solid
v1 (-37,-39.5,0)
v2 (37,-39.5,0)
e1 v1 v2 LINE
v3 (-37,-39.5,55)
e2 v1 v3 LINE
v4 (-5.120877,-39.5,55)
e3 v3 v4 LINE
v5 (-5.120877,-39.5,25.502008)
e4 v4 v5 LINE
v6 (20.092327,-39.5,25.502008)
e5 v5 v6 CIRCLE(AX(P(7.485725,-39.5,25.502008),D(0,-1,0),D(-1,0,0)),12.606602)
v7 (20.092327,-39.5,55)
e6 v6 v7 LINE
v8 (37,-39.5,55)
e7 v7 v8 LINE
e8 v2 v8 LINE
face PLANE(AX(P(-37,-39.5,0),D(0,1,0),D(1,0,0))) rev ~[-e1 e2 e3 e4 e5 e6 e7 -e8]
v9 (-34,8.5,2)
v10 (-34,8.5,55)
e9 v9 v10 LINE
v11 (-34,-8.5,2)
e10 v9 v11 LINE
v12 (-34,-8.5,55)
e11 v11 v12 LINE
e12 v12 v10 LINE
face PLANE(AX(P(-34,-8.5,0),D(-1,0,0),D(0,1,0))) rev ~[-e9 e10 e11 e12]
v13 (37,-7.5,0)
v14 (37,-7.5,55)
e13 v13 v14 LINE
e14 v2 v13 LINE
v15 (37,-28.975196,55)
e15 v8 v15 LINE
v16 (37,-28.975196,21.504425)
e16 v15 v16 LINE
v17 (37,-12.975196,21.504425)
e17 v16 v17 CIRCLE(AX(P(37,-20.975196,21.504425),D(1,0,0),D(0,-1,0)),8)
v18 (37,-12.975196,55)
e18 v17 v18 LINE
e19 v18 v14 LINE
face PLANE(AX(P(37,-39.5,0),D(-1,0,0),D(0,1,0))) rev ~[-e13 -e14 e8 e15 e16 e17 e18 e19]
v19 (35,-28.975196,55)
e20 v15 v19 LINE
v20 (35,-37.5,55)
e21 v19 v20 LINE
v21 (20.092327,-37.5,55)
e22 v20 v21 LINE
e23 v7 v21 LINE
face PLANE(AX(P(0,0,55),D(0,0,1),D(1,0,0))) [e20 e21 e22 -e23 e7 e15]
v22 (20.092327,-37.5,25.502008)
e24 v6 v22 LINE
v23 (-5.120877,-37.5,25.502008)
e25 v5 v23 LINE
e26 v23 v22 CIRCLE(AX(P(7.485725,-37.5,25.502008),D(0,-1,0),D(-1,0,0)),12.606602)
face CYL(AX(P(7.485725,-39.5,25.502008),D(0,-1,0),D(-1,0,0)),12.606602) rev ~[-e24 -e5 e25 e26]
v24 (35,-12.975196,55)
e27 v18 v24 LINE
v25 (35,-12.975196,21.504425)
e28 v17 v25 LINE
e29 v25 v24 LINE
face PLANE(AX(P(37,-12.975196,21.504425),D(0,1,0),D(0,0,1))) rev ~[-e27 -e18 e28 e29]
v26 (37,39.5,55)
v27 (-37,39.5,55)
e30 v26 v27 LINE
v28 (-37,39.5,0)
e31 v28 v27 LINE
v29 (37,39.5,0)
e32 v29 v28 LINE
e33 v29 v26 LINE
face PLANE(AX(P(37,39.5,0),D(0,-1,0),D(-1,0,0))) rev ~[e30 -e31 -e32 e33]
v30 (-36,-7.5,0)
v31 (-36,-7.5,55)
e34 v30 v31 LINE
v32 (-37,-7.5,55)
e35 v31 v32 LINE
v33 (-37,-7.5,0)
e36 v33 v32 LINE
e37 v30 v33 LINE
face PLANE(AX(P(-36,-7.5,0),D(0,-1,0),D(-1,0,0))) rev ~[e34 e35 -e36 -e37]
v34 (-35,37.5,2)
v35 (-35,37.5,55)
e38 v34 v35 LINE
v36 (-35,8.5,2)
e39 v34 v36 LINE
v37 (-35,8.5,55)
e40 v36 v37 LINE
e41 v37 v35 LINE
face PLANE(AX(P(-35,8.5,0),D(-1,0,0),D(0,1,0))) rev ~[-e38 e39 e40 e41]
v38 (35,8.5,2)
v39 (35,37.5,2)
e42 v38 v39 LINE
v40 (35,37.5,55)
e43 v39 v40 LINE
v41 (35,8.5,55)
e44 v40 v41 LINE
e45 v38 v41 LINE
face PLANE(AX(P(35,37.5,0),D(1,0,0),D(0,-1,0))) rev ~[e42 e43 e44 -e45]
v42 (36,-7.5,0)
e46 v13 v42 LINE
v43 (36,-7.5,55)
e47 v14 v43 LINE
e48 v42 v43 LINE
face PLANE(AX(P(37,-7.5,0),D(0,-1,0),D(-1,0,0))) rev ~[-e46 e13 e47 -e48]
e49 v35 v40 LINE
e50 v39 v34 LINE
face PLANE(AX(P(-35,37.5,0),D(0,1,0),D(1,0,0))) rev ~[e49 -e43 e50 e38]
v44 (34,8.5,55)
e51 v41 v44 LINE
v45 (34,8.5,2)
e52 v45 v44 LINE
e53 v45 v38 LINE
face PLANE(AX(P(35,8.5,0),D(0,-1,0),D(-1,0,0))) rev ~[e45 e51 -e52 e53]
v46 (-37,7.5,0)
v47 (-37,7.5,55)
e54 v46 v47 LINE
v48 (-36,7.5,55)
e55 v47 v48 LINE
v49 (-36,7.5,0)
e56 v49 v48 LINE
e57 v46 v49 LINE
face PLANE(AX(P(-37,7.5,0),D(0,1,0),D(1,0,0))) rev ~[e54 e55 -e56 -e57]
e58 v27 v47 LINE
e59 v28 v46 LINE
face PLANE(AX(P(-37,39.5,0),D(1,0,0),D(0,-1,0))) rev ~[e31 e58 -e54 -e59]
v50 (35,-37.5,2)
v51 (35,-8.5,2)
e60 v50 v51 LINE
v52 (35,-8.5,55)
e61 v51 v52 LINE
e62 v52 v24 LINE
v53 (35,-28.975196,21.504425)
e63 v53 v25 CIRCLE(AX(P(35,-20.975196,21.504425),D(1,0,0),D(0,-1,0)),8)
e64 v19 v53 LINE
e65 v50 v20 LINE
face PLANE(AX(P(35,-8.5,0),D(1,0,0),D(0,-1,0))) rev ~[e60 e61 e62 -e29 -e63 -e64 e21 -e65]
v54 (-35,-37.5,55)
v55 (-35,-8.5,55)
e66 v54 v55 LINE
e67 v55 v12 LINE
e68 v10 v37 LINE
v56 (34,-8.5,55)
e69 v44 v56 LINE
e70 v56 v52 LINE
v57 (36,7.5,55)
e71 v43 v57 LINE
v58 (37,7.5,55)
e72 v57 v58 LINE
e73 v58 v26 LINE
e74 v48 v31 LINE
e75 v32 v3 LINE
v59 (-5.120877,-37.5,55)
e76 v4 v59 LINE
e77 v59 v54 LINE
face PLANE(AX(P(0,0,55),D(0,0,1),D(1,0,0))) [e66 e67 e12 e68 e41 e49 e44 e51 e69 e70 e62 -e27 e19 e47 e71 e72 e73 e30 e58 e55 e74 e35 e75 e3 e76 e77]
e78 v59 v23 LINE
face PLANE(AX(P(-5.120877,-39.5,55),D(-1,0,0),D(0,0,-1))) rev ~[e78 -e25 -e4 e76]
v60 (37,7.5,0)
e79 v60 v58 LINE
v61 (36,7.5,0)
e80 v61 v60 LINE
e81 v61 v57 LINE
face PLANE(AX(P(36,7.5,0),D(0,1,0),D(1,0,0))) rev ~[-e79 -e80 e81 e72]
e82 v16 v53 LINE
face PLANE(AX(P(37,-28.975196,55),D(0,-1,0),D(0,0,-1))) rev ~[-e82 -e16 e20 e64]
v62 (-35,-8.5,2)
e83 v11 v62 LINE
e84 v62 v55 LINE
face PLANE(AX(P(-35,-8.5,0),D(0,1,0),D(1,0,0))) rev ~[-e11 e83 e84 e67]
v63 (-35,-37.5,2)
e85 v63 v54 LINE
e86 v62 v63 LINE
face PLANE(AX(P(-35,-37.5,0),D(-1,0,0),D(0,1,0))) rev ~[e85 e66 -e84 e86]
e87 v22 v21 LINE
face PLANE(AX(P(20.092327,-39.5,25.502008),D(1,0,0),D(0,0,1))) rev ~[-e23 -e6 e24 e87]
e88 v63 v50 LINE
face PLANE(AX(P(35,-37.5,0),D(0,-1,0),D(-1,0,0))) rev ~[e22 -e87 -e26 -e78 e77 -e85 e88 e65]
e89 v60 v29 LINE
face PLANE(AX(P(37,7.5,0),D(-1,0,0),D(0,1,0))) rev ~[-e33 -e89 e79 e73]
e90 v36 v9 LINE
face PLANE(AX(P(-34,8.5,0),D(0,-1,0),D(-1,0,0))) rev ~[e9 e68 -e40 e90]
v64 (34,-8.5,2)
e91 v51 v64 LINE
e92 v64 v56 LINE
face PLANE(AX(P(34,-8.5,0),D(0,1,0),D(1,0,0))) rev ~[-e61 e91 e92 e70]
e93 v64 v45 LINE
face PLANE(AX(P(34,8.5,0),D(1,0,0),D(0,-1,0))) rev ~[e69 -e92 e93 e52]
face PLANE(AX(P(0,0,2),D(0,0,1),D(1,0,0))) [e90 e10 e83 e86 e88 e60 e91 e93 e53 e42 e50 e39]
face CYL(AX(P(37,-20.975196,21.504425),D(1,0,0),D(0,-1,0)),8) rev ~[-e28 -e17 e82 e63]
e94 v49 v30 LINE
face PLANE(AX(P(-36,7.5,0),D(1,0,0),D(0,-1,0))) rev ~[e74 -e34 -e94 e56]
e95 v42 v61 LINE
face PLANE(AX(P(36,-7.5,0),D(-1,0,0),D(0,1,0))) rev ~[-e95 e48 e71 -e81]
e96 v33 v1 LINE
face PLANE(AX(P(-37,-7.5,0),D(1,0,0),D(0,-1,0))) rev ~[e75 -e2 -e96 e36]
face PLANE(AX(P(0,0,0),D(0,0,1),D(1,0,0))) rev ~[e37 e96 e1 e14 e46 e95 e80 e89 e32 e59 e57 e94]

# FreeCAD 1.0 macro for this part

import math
import FreeCAD as App
import Part
import Sketcher

doc = App.newDocument("Part")
body = doc.addObject("PartDesign::Body", "Body")

sketch1 = doc.addObject("Sketcher::SketchObject", "Sketch")
body.addObject(sketch1)
sketch1.AttachmentSupport = (doc.XY_Plane, [""])
sketch1.MapMode = "FlatFace"
sketch1.addGeometry(Part.LineSegment(App.Vector(-35, -37.5, 0), App.Vector(35, -37.5, 0)), False)
sketch1.addGeometry(Part.LineSegment(App.Vector(35, -37.5, 0), App.Vector(35, -8.5, 0)), False)
sketch1.addGeometry(Part.LineSegment(App.Vector(35, -8.5, 0), App.Vector(34, -8.5, 0)), False)
sketch1.addGeometry(Part.LineSegment(App.Vector(34, -8.5, 0), App.Vector(34, 8.5, 0)), False)
sketch1.addGeometry(Part.LineSegment(App.Vector(34, 8.5, 0), App.Vector(35, 8.5, 0)), False)
sketch1.addGeometry(Part.LineSegment(App.Vector(35, 8.5, 0), App.Vector(35, 37.5, 0)), False)
sketch1.addGeometry(Part.LineSegment(App.Vector(35, 37.5, 0), App.Vector(-35, 37.5, 0)), False)
sketch1.addGeometry(Part.LineSegment(App.Vector(-35, 37.5, 0), App.Vector(-35, 8.5, 0)), False)
sketch1.addGeometry(Part.LineSegment(App.Vector(-35, 8.5, 0), App.Vector(-34, 8.5, 0)), False)
sketch1.addGeometry(Part.LineSegment(App.Vector(-34, 8.5, 0), App.Vector(-34, -8.5, 0)), False)
sketch1.addGeometry(Part.LineSegment(App.Vector(-34, -8.5, 0), App.Vector(-35, -8.5, 0)), False)
sketch1.addGeometry(Part.LineSegment(App.Vector(-35, -8.5, 0), App.Vector(-35, -37.5, 0)), False)
sketch1.addConstraint(Sketcher.Constraint("Coincident", 0, 2, 1, 1))
sketch1.addConstraint(Sketcher.Constraint("Coincident", 1, 2, 2, 1))
sketch1.addConstraint(Sketcher.Constraint("Coincident", 2, 2, 3, 1))
sketch1.addConstraint(Sketcher.Constraint("Coincident", 3, 2, 4, 1))
sketch1.addConstraint(Sketcher.Constraint("Coincident", 4, 2, 5, 1))
sketch1.addConstraint(Sketcher.Constraint("Coincident", 5, 2, 6, 1))
sketch1.addConstraint(Sketcher.Constraint("Coincident", 6, 2, 7, 1))
sketch1.addConstraint(Sketcher.Constraint("Coincident", 7, 2, 8, 1))
sketch1.addConstraint(Sketcher.Constraint("Coincident", 8, 2, 9, 1))
sketch1.addConstraint(Sketcher.Constraint("Coincident", 9, 2, 10, 1))
sketch1.addConstraint(Sketcher.Constraint("Coincident", 10, 2, 11, 1))
sketch1.addConstraint(Sketcher.Constraint("Coincident", 11, 2, 0, 1))
sketch1.addConstraint(Sketcher.Constraint("Horizontal", 0))
sketch1.addConstraint(Sketcher.Constraint("Vertical", 1))
sketch1.addConstraint(Sketcher.Constraint("Horizontal", 2))
sketch1.addConstraint(Sketcher.Constraint("Vertical", 3))
sketch1.addConstraint(Sketcher.Constraint("Horizontal", 4))
sketch1.addConstraint(Sketcher.Constraint("Vertical", 5))
sketch1.addConstraint(Sketcher.Constraint("Horizontal", 6))
sketch1.addConstraint(Sketcher.Constraint("Vertical", 7))
sketch1.addConstraint(Sketcher.Constraint("Horizontal", 8))
sketch1.addConstraint(Sketcher.Constraint("Vertical", 9))
sketch1.addConstraint(Sketcher.Constraint("Horizontal", 10))
sketch1.addConstraint(Sketcher.Constraint("Vertical", 11))
sketch1.addConstraint(Sketcher.Constraint("Symmetric", 0, 2, 6, 2, -1, 1))
sketch1.addConstraint(Sketcher.Constraint("Symmetric", 2, 2, 8, 2, -1, 1))
sketch1.addConstraint(Sketcher.Constraint("Symmetric", 4, 2, 10, 2, -1, 1))
sketch1.addConstraint(Sketcher.Constraint("Symmetric", 4, 2, 7, 2, -2))
sketch1.addConstraint(Sketcher.Constraint("DistanceX", 0, 1, 0, 2, 70.0))
sketch1.addConstraint(Sketcher.Constraint("DistanceX", 2, 2, 2, 1, 1.0))
sketch1.addConstraint(Sketcher.Constraint("DistanceY", 1, 1, 1, 2, 29.0))
sketch1.addConstraint(Sketcher.Constraint("DistanceY", 3, 1, 3, 2, 17.0))
pad1 = doc.addObject("PartDesign::Pad", "Pad")
body.addObject(pad1)
pad1.Profile = sketch1
pad1.Length = 2

sketch2 = doc.addObject("Sketcher::SketchObject", "Sketch001")
body.addObject(sketch2)
sketch2.AttachmentSupport = (doc.XY_Plane, [""])
sketch2.MapMode = "FlatFace"
sketch2.addGeometry(Part.LineSegment(App.Vector(-37, -39.5, 0), App.Vector(37, -39.5, 0)), False)
sketch2.addGeometry(Part.LineSegment(App.Vector(37, -39.5, 0), App.Vector(37, -7.5, 0)), False)
sketch2.addGeometry(Part.LineSegment(App.Vector(37, -7.5, 0), App.Vector(36, -7.5, 0)), False)
sketch2.addGeometry(Part.LineSegment(App.Vector(36, -7.5, 0), App.Vector(36, 7.5, 0)), False)
sketch2.addGeometry(Part.LineSegment(App.Vector(36, 7.5, 0), App.Vector(37, 7.5, 0)), False)
sketch2.addGeometry(Part.LineSegment(App.Vector(37, 7.5, 0), App.Vector(37, 39.5, 0)), False)
sketch2.addGeometry(Part.LineSegment(App.Vector(37, 39.5, 0), App.Vector(-37, 39.5, 0)), False)
sketch2.addGeometry(Part.LineSegment(App.Vector(-37, 39.5, 0), App.Vector(-37, 7.5, 0)), False)
sketch2.addGeometry(Part.LineSegment(App.Vector(-37, 7.5, 0), App.Vector(-36, 7.5, 0)), False)
sketch2.addGeometry(Part.LineSegment(App.Vector(-36, 7.5, 0), App.Vector(-36, -7.5, 0)), False)
sketch2.addGeometry(Part.LineSegment(App.Vector(-36, -7.5, 0), App.Vector(-37, -7.5, 0)), False)
sketch2.addGeometry(Part.LineSegment(App.Vector(-37, -7.5, 0), App.Vector(-37, -39.5, 0)), False)
sketch2.addGeometry(Part.LineSegment(App.Vector(34, -8.5, 0), App.Vector(35, -8.5, 0)), False)
sketch2.addGeometry(Part.LineSegment(App.Vector(35, -8.5, 0), App.Vector(35, -37.5, 0)), False)
sketch2.addGeometry(Part.LineSegment(App.Vector(35, -37.5, 0), App.Vector(-35, -37.5, 0)), False)
sketch2.addGeometry(Part.LineSegment(App.Vector(-35, -37.5, 0), App.Vector(-35, -8.5, 0)), False)
sketch2.addGeometry(Part.LineSegment(App.Vector(-35, -8.5, 0), App.Vector(-34, -8.5, 0)), False)
sketch2.addGeometry(Part.LineSegment(App.Vector(-34, -8.5, 0), App.Vector(-34, 8.5, 0)), False)
sketch2.addGeometry(Part.LineSegment(App.Vector(-34, 8.5, 0), App.Vector(-35, 8.5, 0)), False)
sketch2.addGeometry(Part.LineSegment(App.Vector(-35, 8.5, 0), App.Vector(-35, 37.5, 0)), False)
sketch2.addGeometry(Part.LineSegment(App.Vector(-35, 37.5, 0), App.Vector(35, 37.5, 0)), False)
sketch2.addGeometry(Part.LineSegment(App.Vector(35, 37.5, 0), App.Vector(35, 8.5, 0)), False)
sketch2.addGeometry(Part.LineSegment(App.Vector(35, 8.5, 0), App.Vector(34, 8.5, 0)), False)
sketch2.addGeometry(Part.LineSegment(App.Vector(34, 8.5, 0), App.Vector(34, -8.5, 0)), False)
sketch2.addConstraint(Sketcher.Constraint("Coincident", 0, 2, 1, 1))
sketch2.addConstraint(Sketcher.Constraint("Coincident", 1, 2, 2, 1))
sketch2.addConstraint(Sketcher.Constraint("Coincident", 2, 2, 3, 1))
sketch2.addConstraint(Sketcher.Constraint("Coincident", 3, 2, 4, 1))
sketch2.addConstraint(Sketcher.Constraint("Coincident", 4, 2, 5, 1))
sketch2.addConstraint(Sketcher.Constraint("Coincident", 5, 2, 6, 1))
sketch2.addConstraint(Sketcher.Constraint("Coincident", 6, 2, 7, 1))
sketch2.addConstraint(Sketcher.Constraint("Coincident", 7, 2, 8, 1))
sketch2.addConstraint(Sketcher.Constraint("Coincident", 8, 2, 9, 1))
sketch2.addConstraint(Sketcher.Constraint("Coincident", 9, 2, 10, 1))
sketch2.addConstraint(Sketcher.Constraint("Coincident", 10, 2, 11, 1))
sketch2.addConstraint(Sketcher.Constraint("Coincident", 11, 2, 0, 1))
sketch2.addConstraint(Sketcher.Constraint("Coincident", 12, 2, 13, 1))
sketch2.addConstraint(Sketcher.Constraint("Coincident", 13, 2, 14, 1))
sketch2.addConstraint(Sketcher.Constraint("Coincident", 14, 2, 15, 1))
sketch2.addConstraint(Sketcher.Constraint("Coincident", 15, 2, 16, 1))
sketch2.addConstraint(Sketcher.Constraint("Coincident", 16, 2, 17, 1))
sketch2.addConstraint(Sketcher.Constraint("Coincident", 17, 2, 18, 1))
sketch2.addConstraint(Sketcher.Constraint("Coincident", 18, 2, 19, 1))
sketch2.addConstraint(Sketcher.Constraint("Coincident", 19, 2, 20, 1))
sketch2.addConstraint(Sketcher.Constraint("Coincident", 20, 2, 21, 1))
sketch2.addConstraint(Sketcher.Constraint("Coincident", 21, 2, 22, 1))
sketch2.addConstraint(Sketcher.Constraint("Coincident", 22, 2, 23, 1))
sketch2.addConstraint(Sketcher.Constraint("Coincident", 23, 2, 12, 1))
sketch2.addConstraint(Sketcher.Constraint("Horizontal", 0))
sketch2.addConstraint(Sketcher.Constraint("Vertical", 1))
sketch2.addConstraint(Sketcher.Constraint("Horizontal", 2))
sketch2.addConstraint(Sketcher.Constraint("Vertical", 3))
sketch2.addConstraint(Sketcher.Constraint("Horizontal", 4))
sketch2.addConstraint(Sketcher.Constraint("Vertical", 5))
sketch2.addConstraint(Sketcher.Constraint("Horizontal", 6))
sketch2.addConstraint(Sketcher.Constraint("Vertical", 7))
sketch2.addConstraint(Sketcher.Constraint("Horizontal", 8))
sketch2.addConstraint(Sketcher.Constraint("Vertical", 9))
sketch2.addConstraint(Sketcher.Constraint("Horizontal", 10))
sketch2.addConstraint(Sketcher.Constraint("Vertical", 11))
sketch2.addConstraint(Sketcher.Constraint("Horizontal", 12))
sketch2.addConstraint(Sketcher.Constraint("Vertical", 13))
sketch2.addConstraint(Sketcher.Constraint("Horizontal", 14))
sketch2.addConstraint(Sketcher.Constraint("Vertical", 15))
sketch2.addConstraint(Sketcher.Constraint("Horizontal", 16))
sketch2.addConstraint(Sketcher.Constraint("Vertical", 17))
sketch2.addConstraint(Sketcher.Constraint("Horizontal", 18))
sketch2.addConstraint(Sketcher.Constraint("Vertical", 19))
sketch2.addConstraint(Sketcher.Constraint("Horizontal", 20))
sketch2.addConstraint(Sketcher.Constraint("Vertical", 21))
sketch2.addConstraint(Sketcher.Constraint("Horizontal", 22))
sketch2.addConstraint(Sketcher.Constraint("Vertical", 23))
sketch2.addConstraint(Sketcher.Constraint("Symmetric", 0, 2, 6, 2, -1, 1))
sketch2.addConstraint(Sketcher.Constraint("Symmetric", 2, 2, 8, 2, -1, 1))
sketch2.addConstraint(Sketcher.Constraint("Symmetric", 4, 2, 10, 2, -1, 1))
sketch2.addConstraint(Sketcher.Constraint("Symmetric", 12, 2, 18, 2, -1, 1))
sketch2.addConstraint(Sketcher.Constraint("Symmetric", 14, 2, 20, 2, -1, 1))
sketch2.addConstraint(Sketcher.Constraint("Symmetric", 16, 2, 22, 2, -1, 1))
sketch2.addConstraint(Sketcher.Constraint("Symmetric", 4, 2, 7, 2, -2))
sketch2.addConstraint(Sketcher.Constraint("Symmetric", 12, 2, 15, 2, -2))
sketch2.addConstraint(Sketcher.Constraint("Equal", 10, 12))
sketch2.addConstraint(Sketcher.Constraint("DistanceX", 0, 1, 0, 2, 74.0))
sketch2.addConstraint(Sketcher.Constraint("DistanceX", 2, 2, 2, 1, 1.0))
sketch2.addConstraint(Sketcher.Constraint("DistanceX", 14, 2, 14, 1, 70.0))
sketch2.addConstraint(Sketcher.Constraint("DistanceY", 1, 1, 1, 2, 32.0))
sketch2.addConstraint(Sketcher.Constraint("DistanceY", 3, 1, 3, 2, 15.0))
sketch2.addConstraint(Sketcher.Constraint("DistanceY", 13, 2, 13, 1, 29.0))
sketch2.addConstraint(Sketcher.Constraint("DistanceY", 17, 1, 17, 2, 17.0))
pad2 = doc.addObject("PartDesign::Pad", "Pad001")
body.addObject(pad2)
pad2.Profile = sketch2
pad2.Length = 55

sketch3 = doc.addObject("Sketcher::SketchObject", "Sketch002")
body.addObject(sketch3)
sketch3.AttachmentSupport = (doc.XZ_Plane, [""])
sketch3.MapMode = "FlatFace"
sketch3.AttachmentOffset = App.Placement(App.Vector(0, 0, 39.5), App.Rotation())
sketch3.addGeometry(Part.LineSegment(App.Vector(-5, 55, 0), App.Vector(-5, 26, 0)), False)
sketch3.addGeometry(Part.ArcOfCircle(Part.Circle(App.Vector(7, 26, 0), App.Vector(0, 0, 1), 13), math.radians(180), math.radians(360)), False)
sketch3.addGeometry(Part.LineSegment(App.Vector(20, 26, 0), App.Vector(20, 55, 0)), False)
sketch3.addGeometry(Part.LineSegment(App.Vector(20, 55, 0), App.Vector(-5, 55, 0)), False)
sketch3.addConstraint(Sketcher.Constraint("Tangent", 0, 2, 1, 1))
sketch3.addConstraint(Sketcher.Constraint("Tangent", 1, 2, 2, 1))
sketch3.addConstraint(Sketcher.Constraint("Coincident", 2, 2, 3, 1))
sketch3.addConstraint(Sketcher.Constraint("Coincident", 3, 2, 0, 1))
sketch3.addConstraint(Sketcher.Constraint("Vertical", 0))
sketch3.addConstraint(Sketcher.Constraint("Vertical", 2))
sketch3.addConstraint(Sketcher.Constraint("Horizontal", 3))
sketch3.addConstraint(Sketcher.Constraint("DistanceY", -1, 1, 2, 2, 55.0))
sketch3.addConstraint(Sketcher.Constraint("Radius", 1, 12.606602))
sketch3.addConstraint(Sketcher.Constraint("DistanceY", 0, 2, 0, 1, 29.497992))
sketch3.addConstraint(Sketcher.Constraint("DistanceX", -1, 1, 1, 3, 7.485725))
pocket1 = doc.addObject("PartDesign::Pocket", "Pocket")
body.addObject(pocket1)
pocket1.Profile = sketch3
pocket1.Length = 3

sketch4 = doc.addObject("Sketcher::SketchObject", "Sketch003")
body.addObject(sketch4)
sketch4.AttachmentSupport = (doc.YZ_Plane, [""])
sketch4.MapMode = "FlatFace"
sketch4.AttachmentOffset = App.Placement(App.Vector(0, 0, 37), App.Rotation())
sketch4.addGeometry(Part.ArcOfCircle(Part.Circle(App.Vector(-21, 22, 0), App.Vector(0, 0, 1), 8), math.radians(180), math.radians(360)), False)
sketch4.addGeometry(Part.LineSegment(App.Vector(-13, 22, 0), App.Vector(-13, 55, 0)), False)
sketch4.addGeometry(Part.LineSegment(App.Vector(-13, 55, 0), App.Vector(-29, 55, 0)), False)
sketch4.addGeometry(Part.LineSegment(App.Vector(-29, 55, 0), App.Vector(-29, 22, 0)), False)
sketch4.addConstraint(Sketcher.Constraint("Tangent", 0, 2, 1, 1))
sketch4.addConstraint(Sketcher.Constraint("Coincident", 1, 2, 2, 1))
sketch4.addConstraint(Sketcher.Constraint("Coincident", 2, 2, 3, 1))
sketch4.addConstraint(Sketcher.Constraint("Tangent", 3, 2, 0, 1))
sketch4.addConstraint(Sketcher.Constraint("Vertical", 1))
sketch4.addConstraint(Sketcher.Constraint("Horizontal", 2))
sketch4.addConstraint(Sketcher.Constraint("Vertical", 3))
sketch4.addConstraint(Sketcher.Constraint("Radius", 0, 8.0))
sketch4.addConstraint(Sketcher.Constraint("DistanceY", -1, 1, 1, 2, 55.0))
sketch4.addConstraint(Sketcher.Constraint("DistanceY", 1, 1, 1, 2, 33.495575))
sketch4.addConstraint(Sketcher.Constraint("DistanceX", 0, 3, -1, 1, 20.975196))
pocket2 = doc.addObject("PartDesign::Pocket", "Pocket001")
body.addObject(pocket2)
pocket2.Profile = sketch4
pocket2.Length = 3

doc.recompute()
